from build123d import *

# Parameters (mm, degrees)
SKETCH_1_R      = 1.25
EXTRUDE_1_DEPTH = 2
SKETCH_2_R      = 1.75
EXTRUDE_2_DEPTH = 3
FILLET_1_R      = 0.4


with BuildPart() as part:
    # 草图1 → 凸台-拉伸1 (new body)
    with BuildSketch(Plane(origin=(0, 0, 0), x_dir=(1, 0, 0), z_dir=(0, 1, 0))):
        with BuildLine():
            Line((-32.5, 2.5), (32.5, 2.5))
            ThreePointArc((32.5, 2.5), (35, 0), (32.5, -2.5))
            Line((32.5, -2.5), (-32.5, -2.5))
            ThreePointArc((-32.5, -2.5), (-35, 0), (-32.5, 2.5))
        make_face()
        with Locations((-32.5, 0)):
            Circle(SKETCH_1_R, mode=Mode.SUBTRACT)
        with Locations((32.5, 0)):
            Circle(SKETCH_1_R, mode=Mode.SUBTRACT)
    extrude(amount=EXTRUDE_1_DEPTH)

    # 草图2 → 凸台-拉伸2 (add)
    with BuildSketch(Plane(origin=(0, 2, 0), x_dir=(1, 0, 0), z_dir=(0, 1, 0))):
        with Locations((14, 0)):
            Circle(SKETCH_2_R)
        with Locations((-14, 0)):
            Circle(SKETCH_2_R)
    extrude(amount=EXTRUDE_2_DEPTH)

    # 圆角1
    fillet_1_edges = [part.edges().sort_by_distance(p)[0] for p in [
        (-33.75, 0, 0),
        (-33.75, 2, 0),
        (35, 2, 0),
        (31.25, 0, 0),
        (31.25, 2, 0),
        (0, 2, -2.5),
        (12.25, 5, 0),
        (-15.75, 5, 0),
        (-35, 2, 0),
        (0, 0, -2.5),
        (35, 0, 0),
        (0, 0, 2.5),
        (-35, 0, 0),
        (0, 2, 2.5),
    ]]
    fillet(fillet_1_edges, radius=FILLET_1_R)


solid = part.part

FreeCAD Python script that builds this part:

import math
import FreeCAD as App
import Part
import Sketcher
from FreeCAD import Vector


def edges_at(feature, points):
    """Names of the edges that pass closest to the given points."""
    edges = feature.Shape.Edges
    near = lambda p: min(range(len(edges)), key=lambda i: edges[i].distToShape(Part.Vertex(*p))[0])
    return sorted({f"Edge{near(p) + 1}" for p in points})

doc = App.newDocument("Part")
params = doc.addObject("Spreadsheet::Sheet", "Params")
for row, (alias, value) in enumerate([
    ("sketch1_diameter", "2.5 mm"),
    ("sketch1_radius", "2.5 mm"),
    ("sketch1_width", "65 mm"),
    ("pad1_length", "2 mm"),
    ("sketch2_diameter", "3.5 mm"),
    ("pad2_length", "3 mm"),
    ("fillet_radius", "0.4 mm"),
], start=1):
    params.set(f"A{row}", alias)
    params.set(f"B{row}", "=" + value)
    params.setAlias(f"B{row}", alias)

body = doc.addObject("PartDesign::Body", "Body")

sketch1 = body.newObject("Sketcher::SketchObject", "Sketch")
sketch1.AttachmentSupport = (doc.getObject("XZ_Plane"), [""])
sketch1.MapMode = "FlatFace"
sketch1.addGeometry([
    Part.LineSegment(Vector(32.5, -2.5, 0), Vector(-32.5, -2.5, 0)),
    Part.ArcOfCircle(Part.Circle(Vector(-32.5, 0, 0), Vector(0, 0, 1), 2.5), math.radians(90), math.radians(270)),
    Part.LineSegment(Vector(-32.5, 2.5, 0), Vector(32.5, 2.5, 0)),
    Part.ArcOfCircle(Part.Circle(Vector(32.5, 0, 0), Vector(0, 0, 1), 2.5), math.radians(-90), math.radians(90)),
    Part.Circle(Vector(32.5, 0, 0), Vector(0, 0, 1), 1.25),
    Part.Circle(Vector(-32.5, 0, 0), Vector(0, 0, 1), 1.25),
], False)
sketch1.addConstraint([
    Sketcher.Constraint("Tangent", 0, 2, 1, 2),
    Sketcher.Constraint("Tangent", 1, 1, 2, 1),
    Sketcher.Constraint("Tangent", 2, 2, 3, 2),
    Sketcher.Constraint("Tangent", 3, 1, 0, 1),
    Sketcher.Constraint("Horizontal", 0),
    Sketcher.Constraint("Horizontal", 2),
    Sketcher.Constraint("Coincident", 4, 3, 3, 3),
    Sketcher.Constraint("Coincident", 5, 3, 1, 3),
    Sketcher.Constraint("Equal", 4, 5),
    Sketcher.Constraint("Symmetric", 1, 3, 3, 3, -1, 1),
    Sketcher.Constraint("Diameter", 4, 2.5),
    Sketcher.Constraint("Radius", 1, 2.5),
    Sketcher.Constraint("DistanceX", 0, 2, 0, 1, 65.0),
])
sketch1.setExpression("Constraints[10]", "Params.sketch1_diameter")
sketch1.setExpression("Constraints[11]", "Params.sketch1_radius")
sketch1.setExpression("Constraints[12]", "Params.sketch1_width")
pad1 = body.newObject("PartDesign::Pad", "Pad")
pad1.Profile = sketch1
pad1.setExpression("Length", "Params.pad1_length")
pad1.Reversed = True

sketch2 = body.newObject("Sketcher::SketchObject", "Sketch001")
sketch2.AttachmentSupport = (doc.getObject("XZ_Plane"), [""])
sketch2.MapMode = "FlatFace"
sketch2.AttachmentOffset = App.Placement(Vector(0, 0, -2), App.Rotation())
sketch2.addGeometry([
    Part.Circle(Vector(14, 0, 0), Vector(0, 0, 1), 1.75),
    Part.Circle(Vector(-14, 0, 0), Vector(0, 0, 1), 1.75),
], False)
sketch2.addConstraint([
    Sketcher.Constraint("Equal", 0, 1),
    Sketcher.Constraint("Symmetric", 0, 3, 1, 3, -1, 1),
    Sketcher.Constraint("PointOnObject", 0, 3, -1),
    Sketcher.Constraint("Diameter", 0, 3.5),
    Sketcher.Constraint("DistanceX", -1, 1, 0, 3, 14.0),
])
sketch2.setExpression("Constraints[3]", "Params.sketch2_diameter")
pad2 = body.newObject("PartDesign::Pad", "Pad001")
pad2.Profile = sketch2
pad2.setExpression("Length", "Params.pad2_length")
pad2.Reversed = True
doc.recompute()

fillet = body.newObject("PartDesign::Fillet", "Fillet")
fillet.Base = (pad2, edges_at(pad2, [
    (-33.75, 0, 0),
    (-33.75, 2, 0),
    (35, 2, 0),
    (31.25, 0, 0),
    (31.25, 2, 0),
    (0, 2, -2.5),
    (12.25, 5, 0),
    (-15.75, 5, 0),
    (-35, 2, 0),
    (0, 0, -2.5),
    (35, 0, 0),
    (0, 0, 2.5),
    (-35, 0, 0),
    (0, 2, 2.5),
]))
fillet.setExpression("Radius", "Params.fillet_radius")

doc.recompute()
